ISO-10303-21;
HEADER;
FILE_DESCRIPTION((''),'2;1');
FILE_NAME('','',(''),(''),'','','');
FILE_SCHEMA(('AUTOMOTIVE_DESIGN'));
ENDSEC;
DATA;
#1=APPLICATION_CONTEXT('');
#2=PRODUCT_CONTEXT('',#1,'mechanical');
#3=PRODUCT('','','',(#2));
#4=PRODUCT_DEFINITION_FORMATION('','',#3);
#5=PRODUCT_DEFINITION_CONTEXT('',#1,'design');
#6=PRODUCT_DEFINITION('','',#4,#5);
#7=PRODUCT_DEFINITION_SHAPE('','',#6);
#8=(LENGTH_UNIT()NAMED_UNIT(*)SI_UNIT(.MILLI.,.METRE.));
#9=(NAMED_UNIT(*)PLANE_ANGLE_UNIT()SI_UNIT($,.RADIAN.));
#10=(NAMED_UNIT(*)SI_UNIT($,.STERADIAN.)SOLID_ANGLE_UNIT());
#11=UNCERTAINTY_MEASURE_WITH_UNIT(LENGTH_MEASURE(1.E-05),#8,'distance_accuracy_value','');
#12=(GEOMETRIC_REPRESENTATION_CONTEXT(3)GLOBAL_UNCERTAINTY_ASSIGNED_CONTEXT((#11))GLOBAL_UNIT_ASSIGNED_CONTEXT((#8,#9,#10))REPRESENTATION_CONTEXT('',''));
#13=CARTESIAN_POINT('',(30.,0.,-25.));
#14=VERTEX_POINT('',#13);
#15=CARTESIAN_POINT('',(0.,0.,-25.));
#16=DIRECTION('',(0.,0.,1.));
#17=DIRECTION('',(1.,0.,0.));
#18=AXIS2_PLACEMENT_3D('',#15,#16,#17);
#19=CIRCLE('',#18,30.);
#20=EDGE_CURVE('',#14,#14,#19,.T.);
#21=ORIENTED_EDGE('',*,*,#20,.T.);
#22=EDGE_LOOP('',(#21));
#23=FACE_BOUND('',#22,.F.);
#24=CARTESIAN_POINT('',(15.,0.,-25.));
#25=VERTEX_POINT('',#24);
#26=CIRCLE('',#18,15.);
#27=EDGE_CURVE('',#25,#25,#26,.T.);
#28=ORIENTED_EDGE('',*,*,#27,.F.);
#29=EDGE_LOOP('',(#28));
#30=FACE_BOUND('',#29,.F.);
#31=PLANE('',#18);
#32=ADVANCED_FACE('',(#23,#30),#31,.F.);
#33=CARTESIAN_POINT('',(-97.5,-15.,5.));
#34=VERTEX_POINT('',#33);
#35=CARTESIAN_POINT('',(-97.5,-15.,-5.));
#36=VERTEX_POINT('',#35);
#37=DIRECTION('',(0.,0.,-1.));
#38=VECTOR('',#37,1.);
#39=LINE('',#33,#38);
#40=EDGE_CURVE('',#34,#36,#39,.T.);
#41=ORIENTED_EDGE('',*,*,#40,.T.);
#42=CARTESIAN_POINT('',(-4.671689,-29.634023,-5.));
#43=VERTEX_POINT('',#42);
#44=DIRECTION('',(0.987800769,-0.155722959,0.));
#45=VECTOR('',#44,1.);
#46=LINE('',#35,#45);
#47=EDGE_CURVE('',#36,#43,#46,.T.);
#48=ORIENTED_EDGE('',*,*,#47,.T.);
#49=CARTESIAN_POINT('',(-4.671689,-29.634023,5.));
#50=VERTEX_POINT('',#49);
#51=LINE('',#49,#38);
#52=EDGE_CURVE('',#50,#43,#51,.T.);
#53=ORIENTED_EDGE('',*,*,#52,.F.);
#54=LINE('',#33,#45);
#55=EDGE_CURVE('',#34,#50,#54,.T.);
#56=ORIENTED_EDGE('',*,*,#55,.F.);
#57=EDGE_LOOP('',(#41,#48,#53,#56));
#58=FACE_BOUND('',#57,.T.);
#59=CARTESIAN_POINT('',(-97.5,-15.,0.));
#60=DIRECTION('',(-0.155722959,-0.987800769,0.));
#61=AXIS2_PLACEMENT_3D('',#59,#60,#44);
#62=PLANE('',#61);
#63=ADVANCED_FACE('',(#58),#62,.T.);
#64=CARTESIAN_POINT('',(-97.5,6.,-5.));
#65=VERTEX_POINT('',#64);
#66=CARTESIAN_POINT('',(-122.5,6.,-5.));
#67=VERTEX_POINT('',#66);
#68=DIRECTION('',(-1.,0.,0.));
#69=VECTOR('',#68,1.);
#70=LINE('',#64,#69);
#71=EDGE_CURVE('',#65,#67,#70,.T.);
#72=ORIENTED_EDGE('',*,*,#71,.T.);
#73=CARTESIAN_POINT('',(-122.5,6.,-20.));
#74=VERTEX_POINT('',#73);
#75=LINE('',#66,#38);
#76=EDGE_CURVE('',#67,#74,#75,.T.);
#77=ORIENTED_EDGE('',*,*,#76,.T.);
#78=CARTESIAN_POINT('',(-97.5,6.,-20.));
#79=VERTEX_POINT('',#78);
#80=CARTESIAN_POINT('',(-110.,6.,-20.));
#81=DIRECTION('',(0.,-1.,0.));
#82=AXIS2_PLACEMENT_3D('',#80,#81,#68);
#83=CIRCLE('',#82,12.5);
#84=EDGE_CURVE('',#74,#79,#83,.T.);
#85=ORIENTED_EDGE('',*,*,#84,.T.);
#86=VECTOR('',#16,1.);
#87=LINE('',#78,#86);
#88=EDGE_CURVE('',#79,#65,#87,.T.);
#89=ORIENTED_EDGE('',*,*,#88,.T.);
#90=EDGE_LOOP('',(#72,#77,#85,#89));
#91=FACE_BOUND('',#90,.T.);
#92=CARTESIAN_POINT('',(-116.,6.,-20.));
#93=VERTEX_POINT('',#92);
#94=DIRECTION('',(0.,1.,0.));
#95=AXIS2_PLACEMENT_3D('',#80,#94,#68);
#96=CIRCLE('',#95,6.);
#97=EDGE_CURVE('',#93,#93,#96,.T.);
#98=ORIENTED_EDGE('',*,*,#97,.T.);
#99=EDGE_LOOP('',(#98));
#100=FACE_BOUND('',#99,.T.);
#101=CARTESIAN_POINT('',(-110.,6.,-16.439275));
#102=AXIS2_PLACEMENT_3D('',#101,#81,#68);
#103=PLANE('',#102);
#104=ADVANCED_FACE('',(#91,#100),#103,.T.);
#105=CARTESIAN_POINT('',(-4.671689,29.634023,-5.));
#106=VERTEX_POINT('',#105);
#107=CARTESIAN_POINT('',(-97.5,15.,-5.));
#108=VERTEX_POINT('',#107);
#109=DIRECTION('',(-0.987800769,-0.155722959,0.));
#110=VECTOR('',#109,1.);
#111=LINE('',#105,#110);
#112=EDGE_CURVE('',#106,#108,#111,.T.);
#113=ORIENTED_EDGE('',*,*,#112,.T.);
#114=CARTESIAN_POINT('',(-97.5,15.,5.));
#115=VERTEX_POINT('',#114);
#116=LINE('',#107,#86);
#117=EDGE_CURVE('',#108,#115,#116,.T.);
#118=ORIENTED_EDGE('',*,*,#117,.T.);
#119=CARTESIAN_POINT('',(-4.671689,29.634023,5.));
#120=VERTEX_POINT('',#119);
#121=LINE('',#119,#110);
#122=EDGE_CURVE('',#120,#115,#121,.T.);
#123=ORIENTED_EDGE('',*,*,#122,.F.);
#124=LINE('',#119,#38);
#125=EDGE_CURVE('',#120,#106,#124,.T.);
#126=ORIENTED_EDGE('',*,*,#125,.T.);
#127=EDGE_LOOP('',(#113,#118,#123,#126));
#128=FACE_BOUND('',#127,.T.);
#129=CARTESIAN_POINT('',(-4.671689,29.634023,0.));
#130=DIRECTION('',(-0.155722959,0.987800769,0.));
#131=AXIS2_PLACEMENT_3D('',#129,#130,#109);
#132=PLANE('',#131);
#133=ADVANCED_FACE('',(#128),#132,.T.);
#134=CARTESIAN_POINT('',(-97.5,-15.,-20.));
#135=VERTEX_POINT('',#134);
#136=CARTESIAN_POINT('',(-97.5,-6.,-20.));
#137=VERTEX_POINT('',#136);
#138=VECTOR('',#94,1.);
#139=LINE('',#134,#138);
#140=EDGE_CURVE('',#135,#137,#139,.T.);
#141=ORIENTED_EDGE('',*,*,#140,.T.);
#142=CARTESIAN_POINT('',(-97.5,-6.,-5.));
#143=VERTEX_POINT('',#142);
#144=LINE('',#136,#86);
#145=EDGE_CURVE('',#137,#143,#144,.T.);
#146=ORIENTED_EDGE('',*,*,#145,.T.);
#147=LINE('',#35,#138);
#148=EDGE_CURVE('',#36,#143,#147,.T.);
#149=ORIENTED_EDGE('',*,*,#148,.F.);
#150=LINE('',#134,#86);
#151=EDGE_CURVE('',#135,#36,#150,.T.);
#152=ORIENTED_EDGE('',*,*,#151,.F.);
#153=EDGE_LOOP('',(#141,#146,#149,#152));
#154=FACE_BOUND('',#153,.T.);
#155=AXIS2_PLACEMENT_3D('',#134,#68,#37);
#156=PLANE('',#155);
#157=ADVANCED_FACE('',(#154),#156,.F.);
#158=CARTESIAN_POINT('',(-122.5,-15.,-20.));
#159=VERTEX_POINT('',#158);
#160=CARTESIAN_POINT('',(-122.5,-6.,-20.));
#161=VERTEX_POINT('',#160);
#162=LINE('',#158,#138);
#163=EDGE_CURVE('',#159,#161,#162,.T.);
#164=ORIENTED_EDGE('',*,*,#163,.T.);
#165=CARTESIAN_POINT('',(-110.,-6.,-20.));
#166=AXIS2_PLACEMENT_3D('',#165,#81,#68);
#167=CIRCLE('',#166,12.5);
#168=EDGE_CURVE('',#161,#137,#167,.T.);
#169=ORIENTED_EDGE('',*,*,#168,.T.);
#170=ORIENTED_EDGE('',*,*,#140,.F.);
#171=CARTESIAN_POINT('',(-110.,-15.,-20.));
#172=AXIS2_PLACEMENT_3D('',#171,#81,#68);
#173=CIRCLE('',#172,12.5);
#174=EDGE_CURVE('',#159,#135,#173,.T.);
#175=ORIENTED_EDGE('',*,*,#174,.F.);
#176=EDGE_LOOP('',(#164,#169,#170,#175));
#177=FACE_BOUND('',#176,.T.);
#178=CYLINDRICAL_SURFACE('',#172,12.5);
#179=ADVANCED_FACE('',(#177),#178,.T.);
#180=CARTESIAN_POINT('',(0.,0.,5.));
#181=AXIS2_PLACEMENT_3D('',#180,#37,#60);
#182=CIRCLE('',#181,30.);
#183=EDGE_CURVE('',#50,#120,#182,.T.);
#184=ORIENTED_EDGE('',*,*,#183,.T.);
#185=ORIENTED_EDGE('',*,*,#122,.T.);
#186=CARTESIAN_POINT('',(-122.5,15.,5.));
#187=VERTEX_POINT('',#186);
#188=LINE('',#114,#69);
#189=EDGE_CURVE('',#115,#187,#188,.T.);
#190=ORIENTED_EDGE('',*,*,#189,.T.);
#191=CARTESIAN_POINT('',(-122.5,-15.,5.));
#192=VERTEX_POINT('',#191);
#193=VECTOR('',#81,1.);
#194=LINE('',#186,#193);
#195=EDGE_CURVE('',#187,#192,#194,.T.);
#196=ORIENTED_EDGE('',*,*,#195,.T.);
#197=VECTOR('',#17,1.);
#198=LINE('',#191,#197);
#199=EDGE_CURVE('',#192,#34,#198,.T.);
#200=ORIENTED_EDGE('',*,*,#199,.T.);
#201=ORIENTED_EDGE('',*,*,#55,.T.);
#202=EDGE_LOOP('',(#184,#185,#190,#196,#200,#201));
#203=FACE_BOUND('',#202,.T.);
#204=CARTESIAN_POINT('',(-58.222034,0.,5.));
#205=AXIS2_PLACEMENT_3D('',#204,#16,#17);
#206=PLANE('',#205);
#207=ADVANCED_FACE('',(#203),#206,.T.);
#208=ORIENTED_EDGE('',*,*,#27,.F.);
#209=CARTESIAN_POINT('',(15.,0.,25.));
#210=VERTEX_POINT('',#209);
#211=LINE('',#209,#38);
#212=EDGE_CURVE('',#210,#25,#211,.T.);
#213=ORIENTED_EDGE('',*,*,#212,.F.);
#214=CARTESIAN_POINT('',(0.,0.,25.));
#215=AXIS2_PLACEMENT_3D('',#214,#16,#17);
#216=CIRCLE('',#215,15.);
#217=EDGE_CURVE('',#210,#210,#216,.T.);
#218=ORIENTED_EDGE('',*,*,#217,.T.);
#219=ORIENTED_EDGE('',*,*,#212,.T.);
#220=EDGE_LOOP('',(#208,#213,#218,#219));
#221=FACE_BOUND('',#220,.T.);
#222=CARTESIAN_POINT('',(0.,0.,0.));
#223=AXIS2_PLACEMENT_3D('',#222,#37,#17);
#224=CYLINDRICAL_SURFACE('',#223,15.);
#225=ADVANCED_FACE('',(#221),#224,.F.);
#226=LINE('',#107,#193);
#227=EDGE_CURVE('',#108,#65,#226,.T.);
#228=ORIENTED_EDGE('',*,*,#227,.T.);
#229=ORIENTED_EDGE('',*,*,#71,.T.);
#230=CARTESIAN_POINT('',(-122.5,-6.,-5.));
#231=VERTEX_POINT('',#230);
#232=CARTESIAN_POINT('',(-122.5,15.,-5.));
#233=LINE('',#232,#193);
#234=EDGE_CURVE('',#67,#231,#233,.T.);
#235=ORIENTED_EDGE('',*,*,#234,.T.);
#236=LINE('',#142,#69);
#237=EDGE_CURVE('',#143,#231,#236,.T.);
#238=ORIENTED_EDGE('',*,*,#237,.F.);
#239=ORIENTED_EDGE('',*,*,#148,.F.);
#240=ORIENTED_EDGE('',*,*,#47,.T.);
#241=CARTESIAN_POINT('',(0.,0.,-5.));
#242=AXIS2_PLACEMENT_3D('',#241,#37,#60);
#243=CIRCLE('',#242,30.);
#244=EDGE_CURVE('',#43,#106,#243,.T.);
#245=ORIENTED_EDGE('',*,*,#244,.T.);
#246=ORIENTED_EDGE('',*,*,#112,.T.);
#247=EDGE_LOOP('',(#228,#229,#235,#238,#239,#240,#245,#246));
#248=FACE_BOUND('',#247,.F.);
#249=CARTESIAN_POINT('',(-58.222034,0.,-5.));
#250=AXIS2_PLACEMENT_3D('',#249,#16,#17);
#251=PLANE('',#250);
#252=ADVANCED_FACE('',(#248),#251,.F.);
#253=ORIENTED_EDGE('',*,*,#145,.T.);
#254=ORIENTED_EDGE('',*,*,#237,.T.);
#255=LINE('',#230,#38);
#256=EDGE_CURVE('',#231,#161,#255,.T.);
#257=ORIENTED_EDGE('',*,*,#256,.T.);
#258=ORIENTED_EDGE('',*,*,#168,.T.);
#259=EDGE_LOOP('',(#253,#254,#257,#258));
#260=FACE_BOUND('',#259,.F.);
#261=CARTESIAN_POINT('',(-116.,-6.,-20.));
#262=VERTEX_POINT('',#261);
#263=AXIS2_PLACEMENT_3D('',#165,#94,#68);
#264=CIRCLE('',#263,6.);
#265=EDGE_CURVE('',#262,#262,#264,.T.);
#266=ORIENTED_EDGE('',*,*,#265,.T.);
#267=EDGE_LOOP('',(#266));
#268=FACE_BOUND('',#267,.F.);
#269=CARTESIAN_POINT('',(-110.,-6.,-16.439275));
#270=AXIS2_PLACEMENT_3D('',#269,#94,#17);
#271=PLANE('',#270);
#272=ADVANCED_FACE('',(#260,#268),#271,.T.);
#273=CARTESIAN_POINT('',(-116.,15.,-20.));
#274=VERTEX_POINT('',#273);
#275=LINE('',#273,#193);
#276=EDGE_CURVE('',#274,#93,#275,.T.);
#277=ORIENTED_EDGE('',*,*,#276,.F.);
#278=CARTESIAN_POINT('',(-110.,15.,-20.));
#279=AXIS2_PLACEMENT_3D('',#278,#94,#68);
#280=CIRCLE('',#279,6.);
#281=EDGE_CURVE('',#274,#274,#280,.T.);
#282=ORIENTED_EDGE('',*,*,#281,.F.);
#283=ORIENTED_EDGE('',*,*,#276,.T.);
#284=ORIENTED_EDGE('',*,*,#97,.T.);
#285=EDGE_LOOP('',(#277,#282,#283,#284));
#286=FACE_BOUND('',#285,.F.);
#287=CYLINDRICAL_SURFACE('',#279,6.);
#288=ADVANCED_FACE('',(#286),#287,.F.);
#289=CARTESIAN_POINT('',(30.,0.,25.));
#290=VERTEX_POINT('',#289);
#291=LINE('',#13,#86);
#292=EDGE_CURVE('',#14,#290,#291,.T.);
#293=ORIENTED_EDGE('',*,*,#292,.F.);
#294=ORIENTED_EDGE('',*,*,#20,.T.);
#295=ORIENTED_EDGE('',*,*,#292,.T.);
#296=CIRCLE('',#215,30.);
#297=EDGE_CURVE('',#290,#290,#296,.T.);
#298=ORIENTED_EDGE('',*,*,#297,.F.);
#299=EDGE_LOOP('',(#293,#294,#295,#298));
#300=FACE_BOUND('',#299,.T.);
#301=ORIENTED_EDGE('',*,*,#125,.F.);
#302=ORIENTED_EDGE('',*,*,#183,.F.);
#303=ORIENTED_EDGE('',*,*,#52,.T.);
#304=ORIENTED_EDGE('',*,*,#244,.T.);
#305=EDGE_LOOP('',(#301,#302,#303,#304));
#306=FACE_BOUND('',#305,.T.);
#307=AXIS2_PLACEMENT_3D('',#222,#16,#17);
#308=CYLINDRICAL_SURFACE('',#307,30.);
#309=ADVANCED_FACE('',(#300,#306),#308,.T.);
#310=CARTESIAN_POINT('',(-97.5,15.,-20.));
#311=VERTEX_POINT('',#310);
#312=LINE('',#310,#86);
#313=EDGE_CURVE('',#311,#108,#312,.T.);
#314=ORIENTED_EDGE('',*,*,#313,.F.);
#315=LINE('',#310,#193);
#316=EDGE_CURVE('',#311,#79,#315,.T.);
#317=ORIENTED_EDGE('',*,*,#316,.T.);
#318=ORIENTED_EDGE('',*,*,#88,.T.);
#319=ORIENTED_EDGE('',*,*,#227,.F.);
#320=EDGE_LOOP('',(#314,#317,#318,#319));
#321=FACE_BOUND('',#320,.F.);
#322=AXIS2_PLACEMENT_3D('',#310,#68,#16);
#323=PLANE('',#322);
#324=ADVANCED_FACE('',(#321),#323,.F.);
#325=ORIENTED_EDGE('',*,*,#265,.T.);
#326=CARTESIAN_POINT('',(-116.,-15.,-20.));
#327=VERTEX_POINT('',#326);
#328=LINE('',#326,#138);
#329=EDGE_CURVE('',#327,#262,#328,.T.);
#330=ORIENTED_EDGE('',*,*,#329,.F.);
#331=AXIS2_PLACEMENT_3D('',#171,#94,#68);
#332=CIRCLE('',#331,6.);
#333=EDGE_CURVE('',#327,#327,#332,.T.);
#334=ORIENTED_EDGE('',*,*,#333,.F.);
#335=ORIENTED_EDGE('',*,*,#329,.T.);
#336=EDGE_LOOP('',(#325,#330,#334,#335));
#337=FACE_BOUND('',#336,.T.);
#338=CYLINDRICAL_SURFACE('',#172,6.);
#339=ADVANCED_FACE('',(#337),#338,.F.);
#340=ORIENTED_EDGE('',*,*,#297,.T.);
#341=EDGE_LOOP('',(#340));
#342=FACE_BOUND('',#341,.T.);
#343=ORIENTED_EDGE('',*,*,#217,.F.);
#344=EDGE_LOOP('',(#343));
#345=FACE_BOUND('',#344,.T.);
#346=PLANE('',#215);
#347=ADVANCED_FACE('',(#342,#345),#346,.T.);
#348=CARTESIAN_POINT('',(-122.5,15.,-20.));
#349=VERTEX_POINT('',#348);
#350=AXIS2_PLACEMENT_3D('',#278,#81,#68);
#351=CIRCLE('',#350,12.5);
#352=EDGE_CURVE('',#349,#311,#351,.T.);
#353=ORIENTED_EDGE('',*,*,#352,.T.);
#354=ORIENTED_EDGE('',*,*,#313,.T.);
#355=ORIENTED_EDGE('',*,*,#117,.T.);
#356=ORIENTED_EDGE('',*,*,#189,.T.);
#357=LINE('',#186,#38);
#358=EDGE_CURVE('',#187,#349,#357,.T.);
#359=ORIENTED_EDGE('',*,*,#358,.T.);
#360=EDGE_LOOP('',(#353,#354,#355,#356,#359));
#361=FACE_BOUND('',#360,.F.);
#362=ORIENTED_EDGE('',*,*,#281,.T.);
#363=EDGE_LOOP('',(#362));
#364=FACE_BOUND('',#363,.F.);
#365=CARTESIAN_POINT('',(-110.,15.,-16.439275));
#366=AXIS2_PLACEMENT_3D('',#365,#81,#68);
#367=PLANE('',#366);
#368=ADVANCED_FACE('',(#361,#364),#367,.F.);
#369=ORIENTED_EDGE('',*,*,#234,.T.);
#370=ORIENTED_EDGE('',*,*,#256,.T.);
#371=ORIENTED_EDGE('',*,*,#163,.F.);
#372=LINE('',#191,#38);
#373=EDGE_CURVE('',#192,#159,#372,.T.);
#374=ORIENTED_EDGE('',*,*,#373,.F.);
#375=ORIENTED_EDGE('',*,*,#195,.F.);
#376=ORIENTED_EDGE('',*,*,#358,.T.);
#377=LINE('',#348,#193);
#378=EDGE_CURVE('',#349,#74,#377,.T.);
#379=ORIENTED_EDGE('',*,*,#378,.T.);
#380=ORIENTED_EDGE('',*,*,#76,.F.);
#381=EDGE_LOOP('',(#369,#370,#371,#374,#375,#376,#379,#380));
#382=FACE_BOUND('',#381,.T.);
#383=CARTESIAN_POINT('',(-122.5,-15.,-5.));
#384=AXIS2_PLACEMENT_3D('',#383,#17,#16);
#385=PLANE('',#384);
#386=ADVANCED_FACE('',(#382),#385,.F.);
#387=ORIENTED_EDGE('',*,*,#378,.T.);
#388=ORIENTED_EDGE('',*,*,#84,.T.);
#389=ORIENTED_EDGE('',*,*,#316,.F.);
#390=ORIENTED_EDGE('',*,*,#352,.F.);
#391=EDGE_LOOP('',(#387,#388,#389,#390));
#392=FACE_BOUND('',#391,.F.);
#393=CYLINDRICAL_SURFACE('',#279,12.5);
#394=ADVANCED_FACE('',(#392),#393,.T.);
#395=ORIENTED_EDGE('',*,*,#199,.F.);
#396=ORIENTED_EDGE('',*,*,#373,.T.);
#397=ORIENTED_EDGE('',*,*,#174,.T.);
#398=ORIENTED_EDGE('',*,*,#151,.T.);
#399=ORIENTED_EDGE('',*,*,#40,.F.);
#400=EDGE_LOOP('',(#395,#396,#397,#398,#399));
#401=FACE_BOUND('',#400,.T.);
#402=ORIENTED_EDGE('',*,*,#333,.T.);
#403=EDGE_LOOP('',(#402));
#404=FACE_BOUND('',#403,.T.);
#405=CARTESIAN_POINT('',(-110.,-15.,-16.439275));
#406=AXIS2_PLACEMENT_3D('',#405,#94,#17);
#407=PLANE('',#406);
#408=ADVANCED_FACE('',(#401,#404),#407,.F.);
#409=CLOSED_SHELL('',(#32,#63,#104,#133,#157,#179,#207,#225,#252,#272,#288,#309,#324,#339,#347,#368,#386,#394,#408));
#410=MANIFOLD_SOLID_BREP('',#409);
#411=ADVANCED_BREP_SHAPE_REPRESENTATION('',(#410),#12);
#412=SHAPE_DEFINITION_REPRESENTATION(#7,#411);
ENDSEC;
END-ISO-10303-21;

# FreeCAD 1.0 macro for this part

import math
import FreeCAD as App
import Part
import Sketcher

V = App.Vector
Q = App.Units.Quantity

doc = App.newDocument("Part")
body = doc.addObject("PartDesign::Body", "Body")

# Sketch on XY plane
sketch1 = doc.addObject("Sketcher::SketchObject", "Sketch")
body.addObject(sketch1)
sketch1.AttachmentSupport = (doc.XY_Plane, [""])
sketch1.MapMode = "FlatFace"
sketch1.addGeometry(Part.Circle(V(0, 0, 0), V(0, 0, 1), 30), False)
sketch1.addGeometry(Part.Circle(V(0, 0, 0), V(0, 0, 1), 15), False)
sketch1.addConstraint(Sketcher.Constraint("Coincident", 0, 3, -1, 1))
sketch1.addConstraint(Sketcher.Constraint("Coincident", 1, 3, -1, 1))
sketch1.addConstraint(Sketcher.Constraint("Diameter", 0, Q("60 mm")))
sketch1.addConstraint(Sketcher.Constraint("Diameter", 1, Q("30 mm")))
pad1 = doc.addObject("PartDesign::Pad", "Pad")
body.addObject(pad1)
pad1.Profile = sketch1
pad1.Length = 50
pad1.Midplane = True

# Sketch on XY plane
sketch2 = doc.addObject("Sketcher::SketchObject", "Sketch001")
body.addObject(sketch2)
sketch2.AttachmentSupport = (doc.XY_Plane, [""])
sketch2.MapMode = "FlatFace"
sketch2.addGeometry(Part.LineSegment(V(-5, 30, 0), V(-98, 15, 0)), False)
sketch2.addGeometry(Part.LineSegment(V(-98, 15, 0), V(-122, 15, 0)), False)
sketch2.addGeometry(Part.LineSegment(V(-122, 15, 0), V(-122, -15, 0)), False)
sketch2.addGeometry(Part.LineSegment(V(-122, -15, 0), V(-98, -15, 0)), False)
sketch2.addGeometry(Part.LineSegment(V(-98, -15, 0), V(-5, -30, 0)), False)
sketch2.addGeometry(Part.ArcOfCircle(Part.Circle(V(0, 0, 0), V(0, 0, 1), 30), math.radians(99), math.radians(261)), False)
sketch2.addConstraint(Sketcher.Constraint("Coincident", 0, 2, 1, 1))
sketch2.addConstraint(Sketcher.Constraint("Coincident", 1, 2, 2, 1))
sketch2.addConstraint(Sketcher.Constraint("Coincident", 2, 2, 3, 1))
sketch2.addConstraint(Sketcher.Constraint("Coincident", 3, 2, 4, 1))
sketch2.addConstraint(Sketcher.Constraint("Tangent", 4, 2, 5, 2))
sketch2.addConstraint(Sketcher.Constraint("Tangent", 5, 1, 0, 1))
sketch2.addConstraint(Sketcher.Constraint("Horizontal", 1))
sketch2.addConstraint(Sketcher.Constraint("Vertical", 2))
sketch2.addConstraint(Sketcher.Constraint("Horizontal", 3))
sketch2.addConstraint(Sketcher.Constraint("Coincident", 5, 3, -1, 1))
sketch2.addConstraint(Sketcher.Constraint("Symmetric", 0, 2, 3, 2, -1))
sketch2.addConstraint(Sketcher.Constraint("Radius", 5, Q("30 mm")))
sketch2.addConstraint(Sketcher.Constraint("DistanceX", 1, 2, 1, 1, Q("25 mm")))
sketch2.addConstraint(Sketcher.Constraint("DistanceY", 2, 2, 2, 1, Q("30 mm")))
sketch2.addConstraint(Sketcher.Constraint("DistanceX", 0, 2, -1, 1, Q("97.5 mm")))
pad2 = doc.addObject("PartDesign::Pad", "Pad001")
body.addObject(pad2)
pad2.Profile = sketch2
pad2.Length = 10
pad2.Midplane = True

# Sketch on XZ plane
sketch3 = doc.addObject("Sketcher::SketchObject", "Sketch002")
body.addObject(sketch3)
sketch3.AttachmentSupport = (doc.XZ_Plane, [""])
sketch3.MapMode = "FlatFace"
sketch3.AttachmentOffset = App.Placement(V(0, 0, -15), App.Rotation())
sketch3.addGeometry(Part.LineSegment(V(-122, -5, 0), V(-98, -5, 0)), False)
sketch3.addGeometry(Part.LineSegment(V(-98, -5, 0), V(-98, -20, 0)), False)
sketch3.addGeometry(Part.ArcOfCircle(Part.Circle(V(-110, -20, 0), V(0, 0, 1), 12), math.radians(180), math.radians(360)), False)
sketch3.addGeometry(Part.LineSegment(V(-122, -20, 0), V(-122, -5, 0)), False)
sketch3.addGeometry(Part.Circle(V(-110, -20, 0), V(0, 0, 1), 6), False)
sketch3.addConstraint(Sketcher.Constraint("Coincident", 0, 2, 1, 1))
sketch3.addConstraint(Sketcher.Constraint("Tangent", 1, 2, 2, 2))
sketch3.addConstraint(Sketcher.Constraint("Tangent", 2, 1, 3, 1))
sketch3.addConstraint(Sketcher.Constraint("Coincident", 3, 2, 0, 1))
sketch3.addConstraint(Sketcher.Constraint("Horizontal", 0))
sketch3.addConstraint(Sketcher.Constraint("Vertical", 1))
sketch3.addConstraint(Sketcher.Constraint("Vertical", 3))
sketch3.addConstraint(Sketcher.Constraint("Coincident", 4, 3, 2, 3))
sketch3.addConstraint(Sketcher.Constraint("Diameter", 4, Q("12 mm")))
sketch3.addConstraint(Sketcher.Constraint("Radius", 2, Q("12.5 mm")))
sketch3.addConstraint(Sketcher.Constraint("DistanceY", 1, 2, 1, 1, Q("15 mm")))
sketch3.addConstraint(Sketcher.Constraint("DistanceX", 2, 3, -1, 1, Q("110 mm")))
sketch3.addConstraint(Sketcher.Constraint("DistanceY", 2, 3, -1, 1, Q("20 mm")))
pad3 = doc.addObject("PartDesign::Pad", "Pad002")
body.addObject(pad3)
pad3.Profile = sketch3
pad3.Length = 9
doc.recompute()

mirrored = doc.addObject("PartDesign::Mirrored", "Mirrored")
body.addObject(mirrored)
mirrored.Originals = [pad2, pad3]
mirrored.MirrorPlane = (doc.XZ_Plane, [""])
body.Tip = mirrored

doc.recompute()
